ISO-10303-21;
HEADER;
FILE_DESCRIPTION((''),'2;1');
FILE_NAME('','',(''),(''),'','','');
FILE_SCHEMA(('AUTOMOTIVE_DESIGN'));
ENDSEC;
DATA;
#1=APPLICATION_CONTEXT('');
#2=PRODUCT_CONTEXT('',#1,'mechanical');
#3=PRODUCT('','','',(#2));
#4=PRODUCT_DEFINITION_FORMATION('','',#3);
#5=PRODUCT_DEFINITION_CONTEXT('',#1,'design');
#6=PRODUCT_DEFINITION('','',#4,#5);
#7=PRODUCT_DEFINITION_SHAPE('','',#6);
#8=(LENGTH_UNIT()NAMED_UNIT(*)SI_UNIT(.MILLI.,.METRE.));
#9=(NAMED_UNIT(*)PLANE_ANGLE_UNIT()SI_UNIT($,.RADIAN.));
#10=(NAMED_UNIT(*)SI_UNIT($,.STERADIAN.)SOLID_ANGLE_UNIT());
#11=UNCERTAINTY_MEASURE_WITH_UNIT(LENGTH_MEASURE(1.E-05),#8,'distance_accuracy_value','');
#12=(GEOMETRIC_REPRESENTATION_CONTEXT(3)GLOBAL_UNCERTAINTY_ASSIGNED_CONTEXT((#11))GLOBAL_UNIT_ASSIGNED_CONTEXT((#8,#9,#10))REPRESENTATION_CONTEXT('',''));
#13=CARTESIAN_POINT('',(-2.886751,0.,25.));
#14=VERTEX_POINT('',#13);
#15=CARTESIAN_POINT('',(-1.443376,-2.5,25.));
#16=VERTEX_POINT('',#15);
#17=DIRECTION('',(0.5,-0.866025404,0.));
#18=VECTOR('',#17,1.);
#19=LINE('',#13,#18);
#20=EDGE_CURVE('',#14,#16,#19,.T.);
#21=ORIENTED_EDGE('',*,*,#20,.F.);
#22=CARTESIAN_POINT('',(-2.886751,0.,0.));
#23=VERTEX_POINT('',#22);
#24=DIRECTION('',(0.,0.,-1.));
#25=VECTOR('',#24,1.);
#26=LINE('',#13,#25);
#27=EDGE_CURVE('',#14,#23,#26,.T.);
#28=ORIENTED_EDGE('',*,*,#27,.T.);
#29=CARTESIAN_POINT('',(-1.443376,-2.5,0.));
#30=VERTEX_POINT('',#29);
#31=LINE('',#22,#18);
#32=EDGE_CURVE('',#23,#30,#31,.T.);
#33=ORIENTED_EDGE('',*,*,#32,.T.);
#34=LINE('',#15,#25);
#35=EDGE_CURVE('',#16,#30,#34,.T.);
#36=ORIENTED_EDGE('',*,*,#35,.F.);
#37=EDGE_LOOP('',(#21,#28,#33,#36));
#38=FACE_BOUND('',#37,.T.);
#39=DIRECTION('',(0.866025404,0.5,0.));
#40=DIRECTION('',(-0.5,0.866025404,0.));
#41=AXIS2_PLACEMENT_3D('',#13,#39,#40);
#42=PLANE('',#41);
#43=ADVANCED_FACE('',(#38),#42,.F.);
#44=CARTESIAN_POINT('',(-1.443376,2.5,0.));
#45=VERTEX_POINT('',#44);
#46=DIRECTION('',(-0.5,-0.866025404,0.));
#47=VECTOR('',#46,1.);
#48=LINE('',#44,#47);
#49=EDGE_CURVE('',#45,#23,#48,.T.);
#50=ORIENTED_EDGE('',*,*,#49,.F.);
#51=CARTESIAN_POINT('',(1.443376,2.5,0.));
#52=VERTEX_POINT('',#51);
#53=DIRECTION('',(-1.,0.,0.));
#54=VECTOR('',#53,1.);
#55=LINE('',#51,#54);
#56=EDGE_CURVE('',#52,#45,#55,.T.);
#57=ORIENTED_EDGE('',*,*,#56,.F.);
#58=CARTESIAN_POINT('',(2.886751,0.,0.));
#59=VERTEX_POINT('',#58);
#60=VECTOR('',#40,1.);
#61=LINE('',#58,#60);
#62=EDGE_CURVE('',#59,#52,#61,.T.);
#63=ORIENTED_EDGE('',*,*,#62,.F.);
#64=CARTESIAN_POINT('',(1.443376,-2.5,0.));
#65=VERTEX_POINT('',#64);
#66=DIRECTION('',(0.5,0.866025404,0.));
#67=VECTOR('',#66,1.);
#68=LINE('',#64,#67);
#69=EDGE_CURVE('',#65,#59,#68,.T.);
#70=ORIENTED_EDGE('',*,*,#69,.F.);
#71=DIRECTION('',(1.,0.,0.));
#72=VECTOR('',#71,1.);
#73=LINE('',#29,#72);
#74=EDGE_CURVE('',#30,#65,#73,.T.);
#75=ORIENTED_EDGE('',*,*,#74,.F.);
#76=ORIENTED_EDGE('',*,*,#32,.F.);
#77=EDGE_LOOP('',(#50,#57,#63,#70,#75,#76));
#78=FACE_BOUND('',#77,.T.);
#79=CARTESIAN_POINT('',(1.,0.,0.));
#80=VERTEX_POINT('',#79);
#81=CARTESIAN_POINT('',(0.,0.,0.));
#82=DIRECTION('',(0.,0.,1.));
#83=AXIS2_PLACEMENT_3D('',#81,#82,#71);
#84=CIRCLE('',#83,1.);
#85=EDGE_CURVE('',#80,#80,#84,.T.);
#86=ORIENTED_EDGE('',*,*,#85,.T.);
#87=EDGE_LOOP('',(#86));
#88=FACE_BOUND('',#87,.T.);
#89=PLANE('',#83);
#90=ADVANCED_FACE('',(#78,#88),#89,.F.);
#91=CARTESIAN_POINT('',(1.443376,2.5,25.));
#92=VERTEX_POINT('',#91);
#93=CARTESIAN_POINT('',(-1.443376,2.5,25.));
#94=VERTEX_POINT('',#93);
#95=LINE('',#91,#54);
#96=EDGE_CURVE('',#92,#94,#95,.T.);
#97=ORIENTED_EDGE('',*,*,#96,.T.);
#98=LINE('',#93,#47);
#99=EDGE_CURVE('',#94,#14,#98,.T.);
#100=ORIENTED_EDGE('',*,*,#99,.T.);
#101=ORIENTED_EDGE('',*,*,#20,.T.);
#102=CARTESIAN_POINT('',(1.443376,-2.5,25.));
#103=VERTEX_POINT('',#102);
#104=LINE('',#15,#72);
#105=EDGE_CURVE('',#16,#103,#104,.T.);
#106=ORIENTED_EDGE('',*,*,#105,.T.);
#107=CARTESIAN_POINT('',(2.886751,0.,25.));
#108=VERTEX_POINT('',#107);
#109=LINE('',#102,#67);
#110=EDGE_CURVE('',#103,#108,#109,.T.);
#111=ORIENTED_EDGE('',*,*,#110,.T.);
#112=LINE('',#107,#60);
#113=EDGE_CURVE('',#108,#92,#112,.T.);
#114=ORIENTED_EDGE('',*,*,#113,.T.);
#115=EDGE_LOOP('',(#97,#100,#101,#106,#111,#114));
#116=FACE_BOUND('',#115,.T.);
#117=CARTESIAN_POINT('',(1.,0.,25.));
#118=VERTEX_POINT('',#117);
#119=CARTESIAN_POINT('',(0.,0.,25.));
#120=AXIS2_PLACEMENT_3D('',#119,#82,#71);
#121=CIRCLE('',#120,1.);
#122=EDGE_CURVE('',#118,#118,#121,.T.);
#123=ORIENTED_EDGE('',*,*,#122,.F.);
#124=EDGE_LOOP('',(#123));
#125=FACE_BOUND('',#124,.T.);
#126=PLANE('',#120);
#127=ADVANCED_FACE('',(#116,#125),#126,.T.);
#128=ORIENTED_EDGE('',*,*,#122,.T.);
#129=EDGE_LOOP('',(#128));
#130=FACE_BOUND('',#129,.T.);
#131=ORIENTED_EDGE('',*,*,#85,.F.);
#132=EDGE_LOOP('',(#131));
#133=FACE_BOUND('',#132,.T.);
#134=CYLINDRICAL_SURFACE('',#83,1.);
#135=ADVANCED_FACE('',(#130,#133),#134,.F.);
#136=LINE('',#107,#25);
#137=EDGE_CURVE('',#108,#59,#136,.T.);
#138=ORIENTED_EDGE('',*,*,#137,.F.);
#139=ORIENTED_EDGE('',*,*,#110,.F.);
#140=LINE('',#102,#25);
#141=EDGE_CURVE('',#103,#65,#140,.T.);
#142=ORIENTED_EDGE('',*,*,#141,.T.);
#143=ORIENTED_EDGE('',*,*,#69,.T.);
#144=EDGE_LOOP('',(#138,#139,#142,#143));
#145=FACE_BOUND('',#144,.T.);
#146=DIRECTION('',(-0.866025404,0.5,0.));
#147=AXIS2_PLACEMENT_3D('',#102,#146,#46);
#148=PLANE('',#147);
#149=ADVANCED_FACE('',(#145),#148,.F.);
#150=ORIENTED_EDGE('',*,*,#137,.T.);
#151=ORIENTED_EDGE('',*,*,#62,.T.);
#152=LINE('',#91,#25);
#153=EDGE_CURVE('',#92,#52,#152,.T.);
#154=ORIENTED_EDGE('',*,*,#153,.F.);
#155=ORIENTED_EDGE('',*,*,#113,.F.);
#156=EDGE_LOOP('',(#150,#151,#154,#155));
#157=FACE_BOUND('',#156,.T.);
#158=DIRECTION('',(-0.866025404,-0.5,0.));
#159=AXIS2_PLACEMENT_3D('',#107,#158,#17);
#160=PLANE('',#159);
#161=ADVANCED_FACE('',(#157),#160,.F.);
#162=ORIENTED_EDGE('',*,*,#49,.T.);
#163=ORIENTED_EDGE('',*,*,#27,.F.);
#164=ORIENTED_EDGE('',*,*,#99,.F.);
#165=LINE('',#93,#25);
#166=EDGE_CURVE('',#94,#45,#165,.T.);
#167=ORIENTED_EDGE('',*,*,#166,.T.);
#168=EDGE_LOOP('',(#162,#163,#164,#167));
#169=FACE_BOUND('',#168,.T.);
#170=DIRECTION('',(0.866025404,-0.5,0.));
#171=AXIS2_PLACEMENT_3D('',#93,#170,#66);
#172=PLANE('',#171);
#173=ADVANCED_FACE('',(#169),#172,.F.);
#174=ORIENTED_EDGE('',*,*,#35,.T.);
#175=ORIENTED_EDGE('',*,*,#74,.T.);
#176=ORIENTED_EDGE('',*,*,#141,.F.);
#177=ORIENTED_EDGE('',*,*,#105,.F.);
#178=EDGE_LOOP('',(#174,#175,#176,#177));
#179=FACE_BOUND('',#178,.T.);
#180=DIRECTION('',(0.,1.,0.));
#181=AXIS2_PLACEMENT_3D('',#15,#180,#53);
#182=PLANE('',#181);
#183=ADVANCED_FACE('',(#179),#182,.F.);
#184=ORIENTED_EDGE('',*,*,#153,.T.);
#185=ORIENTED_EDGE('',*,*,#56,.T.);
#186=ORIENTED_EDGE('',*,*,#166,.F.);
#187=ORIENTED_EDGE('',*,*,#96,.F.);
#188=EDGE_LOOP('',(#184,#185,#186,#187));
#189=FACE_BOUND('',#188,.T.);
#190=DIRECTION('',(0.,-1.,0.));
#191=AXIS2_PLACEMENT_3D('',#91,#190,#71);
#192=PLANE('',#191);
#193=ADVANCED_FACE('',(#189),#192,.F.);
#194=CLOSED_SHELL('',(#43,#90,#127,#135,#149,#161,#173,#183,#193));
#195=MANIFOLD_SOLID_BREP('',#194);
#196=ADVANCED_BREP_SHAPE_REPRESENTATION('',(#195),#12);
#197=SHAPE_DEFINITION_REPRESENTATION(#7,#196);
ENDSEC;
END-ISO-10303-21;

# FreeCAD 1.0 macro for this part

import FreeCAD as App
import Part
import Sketcher
Q = App.Units.Quantity

doc = App.newDocument("Part")
params = doc.addObject("Spreadsheet::Sheet", "Params")
for row, (alias, value) in enumerate([
    ("pad1_length", "25 mm"),
    ("sketch2_diameter", "2 mm"),
], start=1):
    params.set(f"A{row}", alias)
    params.set(f"B{row}", "=" + value)
    params.setAlias(f"B{row}", alias)

body = doc.addObject("PartDesign::Body", "Body")

sketch1 = doc.addObject("Sketcher::SketchObject", "Sketch")
body.addObject(sketch1)
sketch1.AttachmentSupport = (doc.XY_Plane, [""])
sketch1.MapMode = "FlatFace"
sketch1.addGeometry([
    Part.LineSegment(App.Vector(2.9, 0, 0), App.Vector(1.4, 2.5, 0)),
    Part.LineSegment(App.Vector(1.4, 2.5, 0), App.Vector(-1.4, 2.5, 0)),
    Part.LineSegment(App.Vector(-1.4, 2.5, 0), App.Vector(-2.9, 0, 0)),
    Part.LineSegment(App.Vector(-2.9, 0, 0), App.Vector(-1.4, -2.5, 0)),
    Part.LineSegment(App.Vector(-1.4, -2.5, 0), App.Vector(1.4, -2.5, 0)),
    Part.LineSegment(App.Vector(1.4, -2.5, 0), App.Vector(2.9, 0, 0)),
], False)
sketch1.addConstraint([
    Sketcher.Constraint("Coincident", 0, 2, 1, 1),
    Sketcher.Constraint("Coincident", 1, 2, 2, 1),
    Sketcher.Constraint("Coincident", 2, 2, 3, 1),
    Sketcher.Constraint("Coincident", 3, 2, 4, 1),
    Sketcher.Constraint("Coincident", 4, 2, 5, 1),
    Sketcher.Constraint("Coincident", 5, 2, 0, 1),
    Sketcher.Constraint("Horizontal", 1),
    Sketcher.Constraint("Horizontal", 4),
    Sketcher.Constraint("Symmetric", 0, 2, 3, 2, -1, 1),
    Sketcher.Constraint("Symmetric", 2, 2, 5, 2, -1, 1),
    Sketcher.Constraint("PointOnObject", 2, 2, -1),
    Sketcher.Constraint("Parallel", 2, 5),
    Sketcher.Constraint("Vertical", 1, 2, 3, 2),
    Sketcher.Constraint("Angle", 0, Q("120 deg")),
    Sketcher.Constraint("DistanceY", 3, 2, 1, 2, Q("5 mm")),
    Sketcher.Constraint("DistanceX", 1, 2, 1, 1, Q("2.886751 mm")),
])
pad1 = doc.addObject("PartDesign::Pad", "Pad")
body.addObject(pad1)
pad1.Profile = sketch1
pad1.setExpression("Length", "Params.pad1_length")

sketch2 = doc.addObject("Sketcher::SketchObject", "Sketch001")
body.addObject(sketch2)
sketch2.AttachmentSupport = (doc.XY_Plane, [""])
sketch2.MapMode = "FlatFace"
sketch2.AttachmentOffset = App.Placement(App.Vector(0, 0, 25), App.Rotation())
sketch2.addGeometry(Part.Circle(App.Vector(0, 0, 0), App.Vector(0, 0, 1), 1), False)
sketch2.addConstraint([
    Sketcher.Constraint("Coincident", 0, 3, -1, 1),
    Sketcher.Constraint("Diameter", 0, Q("2 mm")),
])
sketch2.setExpression("Constraints[1]", "Params.sketch2_diameter")
pocket1 = doc.addObject("PartDesign::Pocket", "Pocket")
body.addObject(pocket1)
pocket1.Profile = sketch2
pocket1.Type = "ThroughAll"

doc.recompute()
